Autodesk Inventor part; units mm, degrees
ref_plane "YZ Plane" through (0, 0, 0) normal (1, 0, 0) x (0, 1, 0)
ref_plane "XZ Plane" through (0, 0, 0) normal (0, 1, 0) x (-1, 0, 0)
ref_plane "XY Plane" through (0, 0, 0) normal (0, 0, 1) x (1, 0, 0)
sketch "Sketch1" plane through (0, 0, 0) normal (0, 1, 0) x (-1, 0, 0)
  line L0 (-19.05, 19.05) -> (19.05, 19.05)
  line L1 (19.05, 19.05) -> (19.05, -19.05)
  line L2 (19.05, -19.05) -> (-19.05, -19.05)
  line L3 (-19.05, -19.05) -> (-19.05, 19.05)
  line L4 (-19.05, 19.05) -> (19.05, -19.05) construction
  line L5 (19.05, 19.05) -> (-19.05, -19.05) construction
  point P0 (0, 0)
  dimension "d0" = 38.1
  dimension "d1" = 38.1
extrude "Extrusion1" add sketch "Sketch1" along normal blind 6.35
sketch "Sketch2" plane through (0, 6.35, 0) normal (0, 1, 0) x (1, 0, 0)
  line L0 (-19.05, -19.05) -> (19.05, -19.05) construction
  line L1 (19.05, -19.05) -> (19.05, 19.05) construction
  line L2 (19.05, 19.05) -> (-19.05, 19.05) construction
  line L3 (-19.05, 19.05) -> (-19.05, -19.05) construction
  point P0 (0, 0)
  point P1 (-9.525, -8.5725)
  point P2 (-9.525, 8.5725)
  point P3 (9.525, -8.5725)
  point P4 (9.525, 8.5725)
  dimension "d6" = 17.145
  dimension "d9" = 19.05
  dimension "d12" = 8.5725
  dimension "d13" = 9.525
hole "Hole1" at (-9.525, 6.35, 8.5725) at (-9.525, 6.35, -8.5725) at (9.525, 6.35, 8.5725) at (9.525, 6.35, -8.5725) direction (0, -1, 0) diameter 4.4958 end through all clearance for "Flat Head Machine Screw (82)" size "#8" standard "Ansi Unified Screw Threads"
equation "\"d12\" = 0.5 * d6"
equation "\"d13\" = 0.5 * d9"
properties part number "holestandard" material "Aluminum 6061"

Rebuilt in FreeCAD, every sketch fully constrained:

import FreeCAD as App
import Part
import Sketcher

V = App.Vector
Q = App.Units.Quantity


def add_polygon(sketch, points):
    """Adds a closed chain of lines whose ends are joined by coincident constraints."""
    first, n = sketch.GeometryCount, len(points)
    for a, b in zip(points, points[1:] + points[:1]):
        sketch.addGeometry(Part.LineSegment(App.Vector(*a, 0), App.Vector(*b, 0)), False)
    for i in range(n):
        sketch.addConstraint(Sketcher.Constraint("Coincident", first + i, 2, first + (i + 1) % n, 1))

doc = App.newDocument("Part")
body = doc.addObject("PartDesign::Body", "Body")

sketch1 = body.newObject("Sketcher::SketchObject", "Sketch")
sketch1.AttachmentSupport = (doc.getObject("XZ_Plane"), [""])
sketch1.MapMode = "FlatFace"
add_polygon(sketch1, [(-19, 19), (19, 19), (19, -19), (-19, -19)])
sketch1.addConstraint(Sketcher.Constraint("Horizontal", 0))
sketch1.addConstraint(Sketcher.Constraint("Vertical", 1))
sketch1.addConstraint(Sketcher.Constraint("Horizontal", 2))
sketch1.addConstraint(Sketcher.Constraint("Vertical", 3))
sketch1.addConstraint(Sketcher.Constraint("Symmetric", 0, 2, 2, 2, -1, 1))
sketch1.addConstraint(Sketcher.Constraint("Equal", 2, 1))
sketch1.addConstraint(Sketcher.Constraint("DistanceX", 0, 1, 0, 2, Q("1.5 in")))
pad1 = body.newObject("PartDesign::Pad", "Pad")
pad1.Profile = sketch1
pad1.Length = Q("0.25 in")
pad1.Reversed = True

sketch2 = body.newObject("Sketcher::SketchObject", "Sketch001")
sketch2.AttachmentSupport = (doc.getObject("XZ_Plane"), [""])
sketch2.MapMode = "FlatFace"
sketch2.AttachmentOffset = App.Placement(V(0, 0, -0.25 * 25.4), App.Rotation())
sketch2.addGeometry(Part.Circle(V(-9.5, 8.6, 0), V(0, 0, 1), 2.2), False)
sketch2.addGeometry(Part.Circle(V(-9.5, -8.6, 0), V(0, 0, 1), 2.2), False)
sketch2.addGeometry(Part.Circle(V(9.5, 8.6, 0), V(0, 0, 1), 2.2), False)
sketch2.addGeometry(Part.Circle(V(9.5, -8.6, 0), V(0, 0, 1), 2.2), False)
sketch2.addConstraint(Sketcher.Constraint("Equal", 0, 1))
sketch2.addConstraint(Sketcher.Constraint("Equal", 1, 2))
sketch2.addConstraint(Sketcher.Constraint("Equal", 2, 3))
sketch2.addConstraint(Sketcher.Constraint("Symmetric", 1, 3, 2, 3, -1, 1))
sketch2.addConstraint(Sketcher.Constraint("Symmetric", 0, 3, 3, 3, -1, 1))
sketch2.addConstraint(Sketcher.Constraint("Symmetric", 0, 3, 2, 3, -2))
sketch2.addConstraint(Sketcher.Constraint("Diameter", 0, Q("0.177 in")))
sketch2.addConstraint(Sketcher.Constraint("DistanceX", 0, 3, 2, 3, Q("0.75 in")))
sketch2.addConstraint(Sketcher.Constraint("DistanceY", 1, 3, 0, 3, Q("0.675 in")))
doc.recompute()
hole = body.newObject("PartDesign::Hole", "Hole")
hole.Profile = sketch2
hole.ThreadType = "None"
hole.Diameter = Q("0.177 in")
hole.DepthType = "ThroughAll"
hole.Reversed = True

doc.recompute()
